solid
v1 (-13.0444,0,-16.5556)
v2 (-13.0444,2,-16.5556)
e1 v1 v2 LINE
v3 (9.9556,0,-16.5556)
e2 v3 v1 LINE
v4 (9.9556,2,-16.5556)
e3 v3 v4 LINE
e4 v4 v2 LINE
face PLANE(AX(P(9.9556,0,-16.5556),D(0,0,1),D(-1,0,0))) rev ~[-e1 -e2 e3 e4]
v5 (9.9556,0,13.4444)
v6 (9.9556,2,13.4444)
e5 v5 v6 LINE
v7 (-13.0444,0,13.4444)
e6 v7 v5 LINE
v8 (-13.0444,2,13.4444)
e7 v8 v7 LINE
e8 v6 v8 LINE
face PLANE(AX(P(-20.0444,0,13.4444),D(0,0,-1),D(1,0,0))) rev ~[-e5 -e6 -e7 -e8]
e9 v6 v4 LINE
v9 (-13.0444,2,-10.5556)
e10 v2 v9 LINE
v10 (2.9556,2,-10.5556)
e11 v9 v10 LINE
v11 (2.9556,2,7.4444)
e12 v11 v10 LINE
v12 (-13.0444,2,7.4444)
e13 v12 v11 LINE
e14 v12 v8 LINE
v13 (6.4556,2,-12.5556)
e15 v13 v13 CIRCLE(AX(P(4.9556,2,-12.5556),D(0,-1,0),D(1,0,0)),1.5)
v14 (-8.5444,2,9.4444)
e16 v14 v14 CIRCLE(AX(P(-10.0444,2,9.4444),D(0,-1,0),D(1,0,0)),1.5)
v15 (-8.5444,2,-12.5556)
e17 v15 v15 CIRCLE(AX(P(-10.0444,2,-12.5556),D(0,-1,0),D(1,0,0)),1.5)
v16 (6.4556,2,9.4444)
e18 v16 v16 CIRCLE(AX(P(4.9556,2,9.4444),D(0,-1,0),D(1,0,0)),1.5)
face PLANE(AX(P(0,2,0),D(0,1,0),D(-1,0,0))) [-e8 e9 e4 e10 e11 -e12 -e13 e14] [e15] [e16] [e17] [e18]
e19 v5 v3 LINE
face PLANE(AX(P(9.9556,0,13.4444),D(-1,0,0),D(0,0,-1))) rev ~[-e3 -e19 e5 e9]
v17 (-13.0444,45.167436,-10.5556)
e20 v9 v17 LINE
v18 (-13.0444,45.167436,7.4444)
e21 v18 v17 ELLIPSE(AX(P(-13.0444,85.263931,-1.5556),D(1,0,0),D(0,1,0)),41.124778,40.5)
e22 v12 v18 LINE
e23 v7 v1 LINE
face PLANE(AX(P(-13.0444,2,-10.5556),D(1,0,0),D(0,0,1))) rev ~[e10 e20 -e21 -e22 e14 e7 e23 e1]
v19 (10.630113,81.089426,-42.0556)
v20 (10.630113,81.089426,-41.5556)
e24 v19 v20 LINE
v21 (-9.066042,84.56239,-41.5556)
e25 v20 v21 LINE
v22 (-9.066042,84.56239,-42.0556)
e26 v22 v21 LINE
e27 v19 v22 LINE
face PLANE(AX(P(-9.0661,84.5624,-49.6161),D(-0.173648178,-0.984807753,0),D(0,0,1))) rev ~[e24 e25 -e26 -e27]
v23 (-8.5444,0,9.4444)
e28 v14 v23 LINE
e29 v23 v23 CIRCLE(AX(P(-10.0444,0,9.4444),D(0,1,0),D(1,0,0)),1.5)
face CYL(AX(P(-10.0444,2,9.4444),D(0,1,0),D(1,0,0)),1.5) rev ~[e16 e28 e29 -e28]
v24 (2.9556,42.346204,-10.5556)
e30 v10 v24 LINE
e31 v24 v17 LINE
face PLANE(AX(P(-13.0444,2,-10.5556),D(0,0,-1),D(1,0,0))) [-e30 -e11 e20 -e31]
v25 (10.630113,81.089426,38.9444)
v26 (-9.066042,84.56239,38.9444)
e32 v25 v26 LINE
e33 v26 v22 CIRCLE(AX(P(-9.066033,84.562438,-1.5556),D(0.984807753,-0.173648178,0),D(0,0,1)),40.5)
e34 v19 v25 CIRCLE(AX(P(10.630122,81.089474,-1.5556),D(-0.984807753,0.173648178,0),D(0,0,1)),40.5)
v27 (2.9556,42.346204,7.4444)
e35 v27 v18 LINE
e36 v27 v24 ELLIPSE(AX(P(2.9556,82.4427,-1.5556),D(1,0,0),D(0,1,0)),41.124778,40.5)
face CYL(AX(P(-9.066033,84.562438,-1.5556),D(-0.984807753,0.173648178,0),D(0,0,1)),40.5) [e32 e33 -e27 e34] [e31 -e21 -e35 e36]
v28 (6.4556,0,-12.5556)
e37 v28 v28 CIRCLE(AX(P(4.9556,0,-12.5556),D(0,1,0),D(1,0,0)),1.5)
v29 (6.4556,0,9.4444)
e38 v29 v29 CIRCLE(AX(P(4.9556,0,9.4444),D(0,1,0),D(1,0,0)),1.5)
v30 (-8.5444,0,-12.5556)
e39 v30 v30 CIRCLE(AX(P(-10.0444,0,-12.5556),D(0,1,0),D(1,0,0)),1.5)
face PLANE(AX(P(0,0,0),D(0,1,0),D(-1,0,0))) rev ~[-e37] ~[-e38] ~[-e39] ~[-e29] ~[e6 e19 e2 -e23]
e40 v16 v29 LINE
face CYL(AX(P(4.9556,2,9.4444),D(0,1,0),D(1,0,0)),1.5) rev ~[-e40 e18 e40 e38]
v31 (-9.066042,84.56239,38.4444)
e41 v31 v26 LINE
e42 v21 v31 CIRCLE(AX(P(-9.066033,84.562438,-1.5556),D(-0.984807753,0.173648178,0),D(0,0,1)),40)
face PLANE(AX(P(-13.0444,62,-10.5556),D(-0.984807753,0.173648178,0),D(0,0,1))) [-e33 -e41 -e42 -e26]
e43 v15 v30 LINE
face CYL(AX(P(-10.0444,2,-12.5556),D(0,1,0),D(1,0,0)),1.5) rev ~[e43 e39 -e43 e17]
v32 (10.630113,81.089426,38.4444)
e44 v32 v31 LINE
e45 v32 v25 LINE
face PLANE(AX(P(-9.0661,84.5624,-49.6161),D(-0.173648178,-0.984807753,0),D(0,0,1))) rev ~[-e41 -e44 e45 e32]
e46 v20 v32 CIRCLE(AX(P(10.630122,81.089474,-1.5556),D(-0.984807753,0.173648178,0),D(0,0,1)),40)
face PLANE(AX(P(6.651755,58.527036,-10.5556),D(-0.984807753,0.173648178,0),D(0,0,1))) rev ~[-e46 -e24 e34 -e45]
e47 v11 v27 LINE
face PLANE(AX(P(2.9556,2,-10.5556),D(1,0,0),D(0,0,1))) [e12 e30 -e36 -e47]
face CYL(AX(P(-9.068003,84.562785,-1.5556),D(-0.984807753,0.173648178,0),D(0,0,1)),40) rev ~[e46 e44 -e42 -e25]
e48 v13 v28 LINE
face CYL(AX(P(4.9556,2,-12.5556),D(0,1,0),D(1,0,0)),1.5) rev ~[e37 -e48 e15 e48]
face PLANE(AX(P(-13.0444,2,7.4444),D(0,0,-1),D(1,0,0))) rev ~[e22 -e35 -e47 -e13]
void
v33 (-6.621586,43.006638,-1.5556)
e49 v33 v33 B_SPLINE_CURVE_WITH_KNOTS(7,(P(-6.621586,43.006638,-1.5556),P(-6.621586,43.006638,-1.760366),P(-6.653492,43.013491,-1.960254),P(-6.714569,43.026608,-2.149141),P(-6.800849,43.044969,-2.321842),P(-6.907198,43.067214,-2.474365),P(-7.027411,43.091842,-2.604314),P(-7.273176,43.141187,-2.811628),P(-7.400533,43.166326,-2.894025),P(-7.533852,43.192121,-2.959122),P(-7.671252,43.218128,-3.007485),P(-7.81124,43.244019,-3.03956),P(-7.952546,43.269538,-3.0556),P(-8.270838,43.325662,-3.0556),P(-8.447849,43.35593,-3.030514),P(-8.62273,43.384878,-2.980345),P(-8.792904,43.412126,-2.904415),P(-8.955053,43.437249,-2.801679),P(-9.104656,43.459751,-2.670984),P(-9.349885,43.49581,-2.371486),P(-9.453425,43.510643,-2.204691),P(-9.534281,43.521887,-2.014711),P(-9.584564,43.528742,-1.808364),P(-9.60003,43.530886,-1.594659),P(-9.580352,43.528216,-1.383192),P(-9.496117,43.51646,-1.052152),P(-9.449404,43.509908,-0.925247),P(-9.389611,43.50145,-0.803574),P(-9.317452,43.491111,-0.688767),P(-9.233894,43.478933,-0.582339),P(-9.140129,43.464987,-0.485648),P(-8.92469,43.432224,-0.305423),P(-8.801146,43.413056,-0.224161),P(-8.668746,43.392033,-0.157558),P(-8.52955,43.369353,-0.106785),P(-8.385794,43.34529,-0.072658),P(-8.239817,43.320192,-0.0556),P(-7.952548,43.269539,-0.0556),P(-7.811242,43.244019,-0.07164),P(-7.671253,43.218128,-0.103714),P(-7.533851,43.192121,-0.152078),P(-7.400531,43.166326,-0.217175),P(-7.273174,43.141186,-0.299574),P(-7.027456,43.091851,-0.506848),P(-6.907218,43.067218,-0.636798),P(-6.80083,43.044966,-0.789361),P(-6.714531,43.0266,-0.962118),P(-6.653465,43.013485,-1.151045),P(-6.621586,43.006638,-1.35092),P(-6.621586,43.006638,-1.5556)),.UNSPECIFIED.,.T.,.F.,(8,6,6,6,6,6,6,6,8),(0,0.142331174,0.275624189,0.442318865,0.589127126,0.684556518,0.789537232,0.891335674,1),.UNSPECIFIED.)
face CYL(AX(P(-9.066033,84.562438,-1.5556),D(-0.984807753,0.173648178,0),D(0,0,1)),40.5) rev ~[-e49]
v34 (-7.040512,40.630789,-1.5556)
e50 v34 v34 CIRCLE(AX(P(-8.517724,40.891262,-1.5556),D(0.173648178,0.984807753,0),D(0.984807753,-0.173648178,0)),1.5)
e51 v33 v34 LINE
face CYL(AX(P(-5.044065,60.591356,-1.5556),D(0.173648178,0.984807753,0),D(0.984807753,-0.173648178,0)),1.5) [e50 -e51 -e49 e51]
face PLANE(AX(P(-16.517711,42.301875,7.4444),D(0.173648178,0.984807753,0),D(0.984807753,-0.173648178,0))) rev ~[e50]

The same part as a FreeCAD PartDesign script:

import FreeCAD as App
import Part
import Sketcher
from FreeCAD import Vector
Q = App.Units.Quantity


def edges_at(feature, points):
    """Names of the edges that pass closest to the given points."""
    edges = feature.Shape.Edges
    near = lambda p: min(range(len(edges)), key=lambda i: edges[i].distToShape(Part.Vertex(*p))[0])
    return sorted({f"Edge{near(p) + 1}" for p in points})

doc = App.newDocument("Part")
body = doc.addObject("PartDesign::Body", "Body")

sketch1 = body.newObject("Sketcher::SketchObject", "Sketch")
sketch1.AttachmentSupport = (doc.getObject("XZ_Plane"), [""])
sketch1.MapMode = "FlatFace"
sketch1.addGeometry([
    Part.LineSegment(Vector(-20, -17, 0), Vector(-20, 13, 0)),
    Part.LineSegment(Vector(-20, 13, 0), Vector(10, 13, 0)),
    Part.LineSegment(Vector(10, 13, 0), Vector(10, -17, 0)),
    Part.LineSegment(Vector(10, -17, 0), Vector(-20, -17, 0)),
], False)
sketch1.addConstraint([
    Sketcher.Constraint("Coincident", 0, 2, 1, 1),
    Sketcher.Constraint("Coincident", 1, 2, 2, 1),
    Sketcher.Constraint("Coincident", 2, 2, 3, 1),
    Sketcher.Constraint("Coincident", 3, 2, 0, 1),
    Sketcher.Constraint("Vertical", 0),
    Sketcher.Constraint("Horizontal", 1),
    Sketcher.Constraint("Vertical", 2),
    Sketcher.Constraint("Horizontal", 3),
    Sketcher.Constraint("Equal", 3, 0),
    Sketcher.Constraint("DistanceX", 1, 1, 1, 2, Q("30 mm")),
    Sketcher.Constraint("DistanceX", 0, 2, -1, 1, Q("20.0444 mm")),
    Sketcher.Constraint("DistanceY", -1, 1, 0, 2, Q("13.4444 mm")),
])
pad1 = body.newObject("PartDesign::Pad", "Pad")
pad1.Profile = sketch1
pad1.Length = 2
pad1.Reversed = True

sketch2 = body.newObject("Sketcher::SketchObject", "Sketch001")
sketch2.AttachmentSupport = (doc.getObject("XZ_Plane"), [""])
sketch2.MapMode = "FlatFace"
sketch2.AttachmentOffset = App.Placement(Vector(0, 0, -2), App.Rotation())
sketch2.addGeometry([
    Part.Circle(Vector(5, -12.6, 0), Vector(0, 0, 1), 1.5),
    Part.Circle(Vector(-10, -12.6, 0), Vector(0, 0, 1), 1.5),
    Part.Circle(Vector(-10, 9.4, 0), Vector(0, 0, 1), 1.5),
    Part.Circle(Vector(5, 9.4, 0), Vector(0, 0, 1), 1.5),
], False)
sketch2.addConstraint([
    Sketcher.Constraint("Equal", 0, 1),
    Sketcher.Constraint("Equal", 1, 2),
    Sketcher.Constraint("Equal", 2, 3),
    Sketcher.Constraint("Horizontal", 0, 3, 1, 3),
    Sketcher.Constraint("Horizontal", 2, 3, 3, 3),
    Sketcher.Constraint("Vertical", 1, 3, 2, 3),
    Sketcher.Constraint("Vertical", 0, 3, 3, 3),
    Sketcher.Constraint("Diameter", 0, Q("3 mm")),
    Sketcher.Constraint("DistanceX", 1, 3, 0, 3, Q("15 mm")),
    Sketcher.Constraint("DistanceY", 1, 3, 2, 3, Q("22 mm")),
    Sketcher.Constraint("DistanceX", -1, 1, 0, 3, Q("4.9556 mm")),
    Sketcher.Constraint("DistanceY", 0, 3, -1, 1, Q("12.5556 mm")),
])
pocket1 = body.newObject("PartDesign::Pocket", "Pocket")
pocket1.Profile = sketch2
pocket1.Length = 2
pocket1.Reversed = True

sketch3 = body.newObject("Sketcher::SketchObject", "Sketch002")
sketch3.AttachmentSupport = (doc.getObject("XZ_Plane"), [""])
sketch3.MapMode = "FlatFace"
sketch3.AttachmentOffset = App.Placement(Vector(0, 0, -2), App.Rotation())
sketch3.addGeometry([
    Part.LineSegment(Vector(3, -11, 0), Vector(-13, -11, 0)),
    Part.LineSegment(Vector(-13, -11, 0), Vector(-13, 7, 0)),
    Part.LineSegment(Vector(-13, 7, 0), Vector(3, 7, 0)),
    Part.LineSegment(Vector(3, 7, 0), Vector(3, -11, 0)),
], False)
sketch3.addConstraint([
    Sketcher.Constraint("Coincident", 0, 2, 1, 1),
    Sketcher.Constraint("Coincident", 1, 2, 2, 1),
    Sketcher.Constraint("Coincident", 2, 2, 3, 1),
    Sketcher.Constraint("Coincident", 3, 2, 0, 1),
    Sketcher.Constraint("Horizontal", 0),
    Sketcher.Constraint("Vertical", 1),
    Sketcher.Constraint("Horizontal", 2),
    Sketcher.Constraint("Vertical", 3),
    Sketcher.Constraint("DistanceX", 0, 2, 0, 1, Q("16 mm")),
    Sketcher.Constraint("DistanceY", 1, 1, 1, 2, Q("18 mm")),
    Sketcher.Constraint("DistanceX", 0, 2, -1, 1, Q("13.0444 mm")),
    Sketcher.Constraint("DistanceY", 0, 2, -1, 1, Q("10.5556 mm")),
])
pad2 = body.newObject("PartDesign::Pad", "Pad001")
pad2.Profile = sketch3
pad2.Length = 60
pad2.Reversed = True
doc.recompute()

chamfer = body.newObject("PartDesign::Chamfer", "Chamfer")
chamfer.Base = (pad2, edges_at(pad2, [(2.956, 62, -1.556)]))
chamfer.ChamferType = "Distance and Angle"
chamfer.Size = 16
chamfer.Angle = 10

sketch4 = body.newObject("Sketcher::SketchObject", "Sketch003")
sketch4.AttachmentSupport = (doc.getObject("XZ_Plane"), [""])
sketch4.MapMode = "FlatFace"
sketch4.AttachmentOffset = App.Placement(Vector(0, 0, -2), App.Rotation())
sketch4.addGeometry([
    Part.LineSegment(Vector(-13, 16.2, 0), Vector(-13, -28.5, 0)),
    Part.LineSegment(Vector(-13, -28.5, 0), Vector(-22.9, -28.5, 0)),
    Part.LineSegment(Vector(-22.9, -28.5, 0), Vector(-22.9, -10.6, 0)),
    Part.LineSegment(Vector(-22.9, -10.6, 0), Vector(-21, -10.6, 0)),
    Part.LineSegment(Vector(-21, -10.6, 0), Vector(-21, 16.2, 0)),
    Part.LineSegment(Vector(-21, 16.2, 0), Vector(-13, 16.2, 0)),
], False)
sketch4.addConstraint([
    Sketcher.Constraint("Coincident", 0, 2, 1, 1),
    Sketcher.Constraint("Coincident", 1, 2, 2, 1),
    Sketcher.Constraint("Coincident", 2, 2, 3, 1),
    Sketcher.Constraint("Coincident", 3, 2, 4, 1),
    Sketcher.Constraint("Coincident", 4, 2, 5, 1),
    Sketcher.Constraint("Coincident", 5, 2, 0, 1),
    Sketcher.Constraint("Vertical", 0),
    Sketcher.Constraint("Horizontal", 1),
    Sketcher.Constraint("Vertical", 2),
    Sketcher.Constraint("Horizontal", 3),
    Sketcher.Constraint("Vertical", 4),
    Sketcher.Constraint("Horizontal", 5),
    Sketcher.Constraint("DistanceX", 5, 1, 5, 2, Q("7.952 mm")),
    Sketcher.Constraint("DistanceY", 2, 1, 2, 2, Q("17.923 mm")),
    Sketcher.Constraint("DistanceX", 1, 2, 1, 1, Q("9.8093 mm")),
    Sketcher.Constraint("DistanceY", 0, 2, 0, 1, Q("44.6608 mm")),
    Sketcher.Constraint("DistanceY", -1, 1, 4, 2, Q("16.182 mm")),
    Sketcher.Constraint("DistanceX", 0, 2, -1, 1, Q("13.0444 mm")),
])
pocket2 = body.newObject("PartDesign::Pocket", "Pocket001")
pocket2.Profile = sketch4
pocket2.Length = 20
pocket2.Reversed = True

sketch5 = body.newObject("Sketcher::SketchObject", "Sketch004")
sketch5.Placement = App.Placement(Vector(-13.0444, 62, 7.4444), App.Rotation(Vector(0.984807753, -0.173648178, 0), Vector(0, 0, -1), Vector(0.173648178, 0.984807753, 0), "ZXY"))
sketch5.addGeometry(Part.Circle(Vector(8.1, 9, 0), Vector(0, 0, 1), 1.5), False)
sketch5.addConstraint([
    Sketcher.Constraint("Diameter", 0, Q("3 mm")),
    Sketcher.Constraint("DistanceY", -1, 1, 0, 3, Q("9 mm")),
    Sketcher.Constraint("DistanceX", -1, 1, 0, 3, Q("8.1234 mm")),
])
pocket3 = body.newObject("PartDesign::Pocket", "Pocket002")
pocket3.Profile = sketch5
pocket3.Length = 20

sketch6 = body.newObject("Sketcher::SketchObject", "Sketch005")
sketch6.Placement = App.Placement(Vector(-13.0444, 62, -10.5556), App.Rotation(Vector(0, 0, 1), Vector(0.173648178, 0.984807753, 0), Vector(-0.984807753, 0.173648178, 0), "ZXY"))
sketch6.addGeometry(Part.Circle(Vector(9, 0, 0), Vector(0, 0, 1), 15), False)
sketch6.addConstraint([
    Sketcher.Constraint("PointOnObject", 0, 3, -1),
    Sketcher.Constraint("Diameter", 0, Q("30 mm")),
    Sketcher.Constraint("DistanceX", -1, 1, 0, 3, Q("9 mm")),
])
pocket4 = body.newObject("PartDesign::Pocket", "Pocket003")
pocket4.Profile = sketch6
pocket4.Length = 200

sketch7 = body.newObject("Sketcher::SketchObject", "Sketch006")
sketch7.Placement = App.Placement(Vector(-13.0444, 62, -10.5556), App.Rotation(Vector(0, 0, 1), Vector(0.173648178, 0.984807753, 0), Vector(-0.984807753, 0.173648178, 0), "ZXY"))
sketch7.addGeometry(Part.Circle(Vector(9, 23, 0), Vector(0, 0, 1), 40), False)
sketch7.addConstraint([
    Sketcher.Constraint("Diameter", 0, Q("81 mm")),
    Sketcher.Constraint("DistanceX", -1, 1, 0, 3, Q("9 mm")),
    Sketcher.Constraint("DistanceY", -1, 1, 0, 3, Q("22.9105 mm")),
])
pad3 = body.newObject("PartDesign::Pad", "Pad002")
pad3.Profile = sketch7
pad3.Length = 20
pad3.Reversed = True

sketch8 = body.newObject("Sketcher::SketchObject", "Sketch007")
sketch8.Placement = App.Placement(Vector(-9.0661, 84.5624, -1.5556), App.Rotation(Vector(0, 0, 1), Vector(0.173648178, 0.984807753, 0), Vector(-0.984807753, 0.173648178, 0), "ZXY"))
sketch8.addGeometry([
    Part.LineSegment(Vector(-48, 57, 0), Vector(-48, 0, 0)),
    Part.LineSegment(Vector(-48, 0, 0), Vector(69, 0, 0)),
    Part.LineSegment(Vector(69, 0, 0), Vector(69, 57, 0)),
    Part.LineSegment(Vector(69, 57, 0), Vector(-48, 57, 0)),
], False)
sketch8.addConstraint([
    Sketcher.Constraint("Coincident", 0, 2, 1, 1),
    Sketcher.Constraint("Coincident", 1, 2, 2, 1),
    Sketcher.Constraint("Coincident", 2, 2, 3, 1),
    Sketcher.Constraint("Coincident", 3, 2, 0, 1),
    Sketcher.Constraint("Vertical", 0),
    Sketcher.Constraint("Horizontal", 1),
    Sketcher.Constraint("Vertical", 2),
    Sketcher.Constraint("Horizontal", 3),
    Sketcher.Constraint("PointOnObject", 0, 2, -1),
    Sketcher.Constraint("DistanceY", 0, 2, 0, 1, Q("57.161 mm")),
    Sketcher.Constraint("DistanceX", 1, 1, 1, 2, Q("116.7793 mm")),
    Sketcher.Constraint("DistanceX", 0, 2, -1, 1, Q("48.0605 mm")),
])
pocket5 = body.newObject("PartDesign::Pocket", "Pocket004")
pocket5.Profile = sketch8
pocket5.Type = "ThroughAll"

sketch9 = body.newObject("Sketcher::SketchObject", "Sketch008")
sketch9.Placement = App.Placement(Vector(-13.0444, 62, -10.5556), App.Rotation(Vector(0, 0, 1), Vector(0.173648178, 0.984807753, 0), Vector(-0.984807753, 0.173648178, 0), "ZXY"))
sketch9.addGeometry(Part.Circle(Vector(9, 23, 0), Vector(0, 0, 1), 40), False)
sketch9.addConstraint([
    Sketcher.Constraint("Diameter", 0, Q("80 mm")),
    Sketcher.Constraint("DistanceX", -1, 1, 0, 3, Q("9 mm")),
    Sketcher.Constraint("DistanceY", -1, 1, 0, 3, Q("22.9105 mm")),
])
pocket6 = body.newObject("PartDesign::Pocket", "Pocket005")
pocket6.Profile = sketch9
pocket6.Length = 20

doc.recompute()
